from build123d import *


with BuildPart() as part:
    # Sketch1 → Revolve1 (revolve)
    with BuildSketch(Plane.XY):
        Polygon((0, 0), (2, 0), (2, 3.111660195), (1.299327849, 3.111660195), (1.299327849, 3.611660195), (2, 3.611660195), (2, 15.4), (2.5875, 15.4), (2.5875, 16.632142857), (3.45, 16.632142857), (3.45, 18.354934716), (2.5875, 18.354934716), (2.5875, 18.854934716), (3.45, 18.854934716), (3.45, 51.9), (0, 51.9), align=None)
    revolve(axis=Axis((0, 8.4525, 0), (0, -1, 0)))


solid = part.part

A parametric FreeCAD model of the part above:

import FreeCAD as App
import Part
import Sketcher
Q = App.Units.Quantity


def add_polygon(sketch, points):
    """Adds a closed chain of lines whose ends are joined by coincident constraints."""
    first, n = sketch.GeometryCount, len(points)
    for a, b in zip(points, points[1:] + points[:1]):
        sketch.addGeometry(Part.LineSegment(App.Vector(*a, 0), App.Vector(*b, 0)), False)
    for i in range(n):
        sketch.addConstraint(Sketcher.Constraint("Coincident", first + i, 2, first + (i + 1) % n, 1))

doc = App.newDocument("Part")
body = doc.addObject("PartDesign::Body", "Body")

sketch1 = body.newObject("Sketcher::SketchObject", "Sketch")
sketch1.AttachmentSupport = (doc.getObject("XY_Plane"), [""])
sketch1.MapMode = "FlatFace"
add_polygon(sketch1, [(0, 0), (2, 0), (2, 3.11166), (1.299328, 3.11166), (1.299328, 3.61166), (2, 3.61166), (2, 15.4), (2.5875, 15.4), (2.5875, 16.632143), (3.45, 16.632143), (3.45, 18.354935), (2.5875, 18.354935), (2.5875, 18.854935), (3.45, 18.854935), (3.45, 51.9), (0, 51.9)])
sketch1.addConstraint([
    Sketcher.Constraint("Horizontal", 0),
    Sketcher.Constraint("Vertical", 1),
    Sketcher.Constraint("Horizontal", 2),
    Sketcher.Constraint("Vertical", 3),
    Sketcher.Constraint("Horizontal", 4),
    Sketcher.Constraint("Vertical", 5),
    Sketcher.Constraint("Horizontal", 6),
    Sketcher.Constraint("Vertical", 7),
    Sketcher.Constraint("Horizontal", 8),
    Sketcher.Constraint("Vertical", 9),
    Sketcher.Constraint("Horizontal", 10),
    Sketcher.Constraint("Vertical", 11),
    Sketcher.Constraint("Horizontal", 12),
    Sketcher.Constraint("Vertical", 13),
    Sketcher.Constraint("Horizontal", 14),
    Sketcher.Constraint("Vertical", 15),
    Sketcher.Constraint("Coincident", 15, 2, -1, 1),
    Sketcher.Constraint("Vertical", 1, 2, 4, 2),
    Sketcher.Constraint("Vertical", 7, 2, 10, 2),
    Sketcher.Constraint("Vertical", 9, 2, 12, 2),
    Sketcher.Constraint("Equal", 3, 11),
    Sketcher.Constraint("DistanceX", 0, 1, 0, 2, Q("2 mm")),
    Sketcher.Constraint("DistanceY", 3, 1, 3, 2, Q("0.5 mm")),
    Sketcher.Constraint("DistanceY", 15, 2, 15, 1, Q("51.9 mm")),
    Sketcher.Constraint("DistanceX", 14, 2, 14, 1, Q("3.45 mm")),
    Sketcher.Constraint("DistanceY", -1, 1, 5, 2, Q("15.4 mm")),
    Sketcher.Constraint("DistanceX", 6, 1, 6, 2, Q("0.5875 mm")),
    Sketcher.Constraint("DistanceY", 1, 1, 1, 2, Q("3.11166 mm")),
    Sketcher.Constraint("DistanceY", 9, 1, 9, 2, Q("1.722792 mm")),
    Sketcher.Constraint("DistanceX", 2, 2, 2, 1, Q("0.700672 mm")),
    Sketcher.Constraint("DistanceY", 7, 1, 7, 2, Q("1.232143 mm")),
])
revolution = body.newObject("PartDesign::Revolution", "Revolution")
revolution.Profile = sketch1
revolution.ReferenceAxis = (sketch1, ["V_Axis"])
revolution.Angle = 360

doc.recompute()
